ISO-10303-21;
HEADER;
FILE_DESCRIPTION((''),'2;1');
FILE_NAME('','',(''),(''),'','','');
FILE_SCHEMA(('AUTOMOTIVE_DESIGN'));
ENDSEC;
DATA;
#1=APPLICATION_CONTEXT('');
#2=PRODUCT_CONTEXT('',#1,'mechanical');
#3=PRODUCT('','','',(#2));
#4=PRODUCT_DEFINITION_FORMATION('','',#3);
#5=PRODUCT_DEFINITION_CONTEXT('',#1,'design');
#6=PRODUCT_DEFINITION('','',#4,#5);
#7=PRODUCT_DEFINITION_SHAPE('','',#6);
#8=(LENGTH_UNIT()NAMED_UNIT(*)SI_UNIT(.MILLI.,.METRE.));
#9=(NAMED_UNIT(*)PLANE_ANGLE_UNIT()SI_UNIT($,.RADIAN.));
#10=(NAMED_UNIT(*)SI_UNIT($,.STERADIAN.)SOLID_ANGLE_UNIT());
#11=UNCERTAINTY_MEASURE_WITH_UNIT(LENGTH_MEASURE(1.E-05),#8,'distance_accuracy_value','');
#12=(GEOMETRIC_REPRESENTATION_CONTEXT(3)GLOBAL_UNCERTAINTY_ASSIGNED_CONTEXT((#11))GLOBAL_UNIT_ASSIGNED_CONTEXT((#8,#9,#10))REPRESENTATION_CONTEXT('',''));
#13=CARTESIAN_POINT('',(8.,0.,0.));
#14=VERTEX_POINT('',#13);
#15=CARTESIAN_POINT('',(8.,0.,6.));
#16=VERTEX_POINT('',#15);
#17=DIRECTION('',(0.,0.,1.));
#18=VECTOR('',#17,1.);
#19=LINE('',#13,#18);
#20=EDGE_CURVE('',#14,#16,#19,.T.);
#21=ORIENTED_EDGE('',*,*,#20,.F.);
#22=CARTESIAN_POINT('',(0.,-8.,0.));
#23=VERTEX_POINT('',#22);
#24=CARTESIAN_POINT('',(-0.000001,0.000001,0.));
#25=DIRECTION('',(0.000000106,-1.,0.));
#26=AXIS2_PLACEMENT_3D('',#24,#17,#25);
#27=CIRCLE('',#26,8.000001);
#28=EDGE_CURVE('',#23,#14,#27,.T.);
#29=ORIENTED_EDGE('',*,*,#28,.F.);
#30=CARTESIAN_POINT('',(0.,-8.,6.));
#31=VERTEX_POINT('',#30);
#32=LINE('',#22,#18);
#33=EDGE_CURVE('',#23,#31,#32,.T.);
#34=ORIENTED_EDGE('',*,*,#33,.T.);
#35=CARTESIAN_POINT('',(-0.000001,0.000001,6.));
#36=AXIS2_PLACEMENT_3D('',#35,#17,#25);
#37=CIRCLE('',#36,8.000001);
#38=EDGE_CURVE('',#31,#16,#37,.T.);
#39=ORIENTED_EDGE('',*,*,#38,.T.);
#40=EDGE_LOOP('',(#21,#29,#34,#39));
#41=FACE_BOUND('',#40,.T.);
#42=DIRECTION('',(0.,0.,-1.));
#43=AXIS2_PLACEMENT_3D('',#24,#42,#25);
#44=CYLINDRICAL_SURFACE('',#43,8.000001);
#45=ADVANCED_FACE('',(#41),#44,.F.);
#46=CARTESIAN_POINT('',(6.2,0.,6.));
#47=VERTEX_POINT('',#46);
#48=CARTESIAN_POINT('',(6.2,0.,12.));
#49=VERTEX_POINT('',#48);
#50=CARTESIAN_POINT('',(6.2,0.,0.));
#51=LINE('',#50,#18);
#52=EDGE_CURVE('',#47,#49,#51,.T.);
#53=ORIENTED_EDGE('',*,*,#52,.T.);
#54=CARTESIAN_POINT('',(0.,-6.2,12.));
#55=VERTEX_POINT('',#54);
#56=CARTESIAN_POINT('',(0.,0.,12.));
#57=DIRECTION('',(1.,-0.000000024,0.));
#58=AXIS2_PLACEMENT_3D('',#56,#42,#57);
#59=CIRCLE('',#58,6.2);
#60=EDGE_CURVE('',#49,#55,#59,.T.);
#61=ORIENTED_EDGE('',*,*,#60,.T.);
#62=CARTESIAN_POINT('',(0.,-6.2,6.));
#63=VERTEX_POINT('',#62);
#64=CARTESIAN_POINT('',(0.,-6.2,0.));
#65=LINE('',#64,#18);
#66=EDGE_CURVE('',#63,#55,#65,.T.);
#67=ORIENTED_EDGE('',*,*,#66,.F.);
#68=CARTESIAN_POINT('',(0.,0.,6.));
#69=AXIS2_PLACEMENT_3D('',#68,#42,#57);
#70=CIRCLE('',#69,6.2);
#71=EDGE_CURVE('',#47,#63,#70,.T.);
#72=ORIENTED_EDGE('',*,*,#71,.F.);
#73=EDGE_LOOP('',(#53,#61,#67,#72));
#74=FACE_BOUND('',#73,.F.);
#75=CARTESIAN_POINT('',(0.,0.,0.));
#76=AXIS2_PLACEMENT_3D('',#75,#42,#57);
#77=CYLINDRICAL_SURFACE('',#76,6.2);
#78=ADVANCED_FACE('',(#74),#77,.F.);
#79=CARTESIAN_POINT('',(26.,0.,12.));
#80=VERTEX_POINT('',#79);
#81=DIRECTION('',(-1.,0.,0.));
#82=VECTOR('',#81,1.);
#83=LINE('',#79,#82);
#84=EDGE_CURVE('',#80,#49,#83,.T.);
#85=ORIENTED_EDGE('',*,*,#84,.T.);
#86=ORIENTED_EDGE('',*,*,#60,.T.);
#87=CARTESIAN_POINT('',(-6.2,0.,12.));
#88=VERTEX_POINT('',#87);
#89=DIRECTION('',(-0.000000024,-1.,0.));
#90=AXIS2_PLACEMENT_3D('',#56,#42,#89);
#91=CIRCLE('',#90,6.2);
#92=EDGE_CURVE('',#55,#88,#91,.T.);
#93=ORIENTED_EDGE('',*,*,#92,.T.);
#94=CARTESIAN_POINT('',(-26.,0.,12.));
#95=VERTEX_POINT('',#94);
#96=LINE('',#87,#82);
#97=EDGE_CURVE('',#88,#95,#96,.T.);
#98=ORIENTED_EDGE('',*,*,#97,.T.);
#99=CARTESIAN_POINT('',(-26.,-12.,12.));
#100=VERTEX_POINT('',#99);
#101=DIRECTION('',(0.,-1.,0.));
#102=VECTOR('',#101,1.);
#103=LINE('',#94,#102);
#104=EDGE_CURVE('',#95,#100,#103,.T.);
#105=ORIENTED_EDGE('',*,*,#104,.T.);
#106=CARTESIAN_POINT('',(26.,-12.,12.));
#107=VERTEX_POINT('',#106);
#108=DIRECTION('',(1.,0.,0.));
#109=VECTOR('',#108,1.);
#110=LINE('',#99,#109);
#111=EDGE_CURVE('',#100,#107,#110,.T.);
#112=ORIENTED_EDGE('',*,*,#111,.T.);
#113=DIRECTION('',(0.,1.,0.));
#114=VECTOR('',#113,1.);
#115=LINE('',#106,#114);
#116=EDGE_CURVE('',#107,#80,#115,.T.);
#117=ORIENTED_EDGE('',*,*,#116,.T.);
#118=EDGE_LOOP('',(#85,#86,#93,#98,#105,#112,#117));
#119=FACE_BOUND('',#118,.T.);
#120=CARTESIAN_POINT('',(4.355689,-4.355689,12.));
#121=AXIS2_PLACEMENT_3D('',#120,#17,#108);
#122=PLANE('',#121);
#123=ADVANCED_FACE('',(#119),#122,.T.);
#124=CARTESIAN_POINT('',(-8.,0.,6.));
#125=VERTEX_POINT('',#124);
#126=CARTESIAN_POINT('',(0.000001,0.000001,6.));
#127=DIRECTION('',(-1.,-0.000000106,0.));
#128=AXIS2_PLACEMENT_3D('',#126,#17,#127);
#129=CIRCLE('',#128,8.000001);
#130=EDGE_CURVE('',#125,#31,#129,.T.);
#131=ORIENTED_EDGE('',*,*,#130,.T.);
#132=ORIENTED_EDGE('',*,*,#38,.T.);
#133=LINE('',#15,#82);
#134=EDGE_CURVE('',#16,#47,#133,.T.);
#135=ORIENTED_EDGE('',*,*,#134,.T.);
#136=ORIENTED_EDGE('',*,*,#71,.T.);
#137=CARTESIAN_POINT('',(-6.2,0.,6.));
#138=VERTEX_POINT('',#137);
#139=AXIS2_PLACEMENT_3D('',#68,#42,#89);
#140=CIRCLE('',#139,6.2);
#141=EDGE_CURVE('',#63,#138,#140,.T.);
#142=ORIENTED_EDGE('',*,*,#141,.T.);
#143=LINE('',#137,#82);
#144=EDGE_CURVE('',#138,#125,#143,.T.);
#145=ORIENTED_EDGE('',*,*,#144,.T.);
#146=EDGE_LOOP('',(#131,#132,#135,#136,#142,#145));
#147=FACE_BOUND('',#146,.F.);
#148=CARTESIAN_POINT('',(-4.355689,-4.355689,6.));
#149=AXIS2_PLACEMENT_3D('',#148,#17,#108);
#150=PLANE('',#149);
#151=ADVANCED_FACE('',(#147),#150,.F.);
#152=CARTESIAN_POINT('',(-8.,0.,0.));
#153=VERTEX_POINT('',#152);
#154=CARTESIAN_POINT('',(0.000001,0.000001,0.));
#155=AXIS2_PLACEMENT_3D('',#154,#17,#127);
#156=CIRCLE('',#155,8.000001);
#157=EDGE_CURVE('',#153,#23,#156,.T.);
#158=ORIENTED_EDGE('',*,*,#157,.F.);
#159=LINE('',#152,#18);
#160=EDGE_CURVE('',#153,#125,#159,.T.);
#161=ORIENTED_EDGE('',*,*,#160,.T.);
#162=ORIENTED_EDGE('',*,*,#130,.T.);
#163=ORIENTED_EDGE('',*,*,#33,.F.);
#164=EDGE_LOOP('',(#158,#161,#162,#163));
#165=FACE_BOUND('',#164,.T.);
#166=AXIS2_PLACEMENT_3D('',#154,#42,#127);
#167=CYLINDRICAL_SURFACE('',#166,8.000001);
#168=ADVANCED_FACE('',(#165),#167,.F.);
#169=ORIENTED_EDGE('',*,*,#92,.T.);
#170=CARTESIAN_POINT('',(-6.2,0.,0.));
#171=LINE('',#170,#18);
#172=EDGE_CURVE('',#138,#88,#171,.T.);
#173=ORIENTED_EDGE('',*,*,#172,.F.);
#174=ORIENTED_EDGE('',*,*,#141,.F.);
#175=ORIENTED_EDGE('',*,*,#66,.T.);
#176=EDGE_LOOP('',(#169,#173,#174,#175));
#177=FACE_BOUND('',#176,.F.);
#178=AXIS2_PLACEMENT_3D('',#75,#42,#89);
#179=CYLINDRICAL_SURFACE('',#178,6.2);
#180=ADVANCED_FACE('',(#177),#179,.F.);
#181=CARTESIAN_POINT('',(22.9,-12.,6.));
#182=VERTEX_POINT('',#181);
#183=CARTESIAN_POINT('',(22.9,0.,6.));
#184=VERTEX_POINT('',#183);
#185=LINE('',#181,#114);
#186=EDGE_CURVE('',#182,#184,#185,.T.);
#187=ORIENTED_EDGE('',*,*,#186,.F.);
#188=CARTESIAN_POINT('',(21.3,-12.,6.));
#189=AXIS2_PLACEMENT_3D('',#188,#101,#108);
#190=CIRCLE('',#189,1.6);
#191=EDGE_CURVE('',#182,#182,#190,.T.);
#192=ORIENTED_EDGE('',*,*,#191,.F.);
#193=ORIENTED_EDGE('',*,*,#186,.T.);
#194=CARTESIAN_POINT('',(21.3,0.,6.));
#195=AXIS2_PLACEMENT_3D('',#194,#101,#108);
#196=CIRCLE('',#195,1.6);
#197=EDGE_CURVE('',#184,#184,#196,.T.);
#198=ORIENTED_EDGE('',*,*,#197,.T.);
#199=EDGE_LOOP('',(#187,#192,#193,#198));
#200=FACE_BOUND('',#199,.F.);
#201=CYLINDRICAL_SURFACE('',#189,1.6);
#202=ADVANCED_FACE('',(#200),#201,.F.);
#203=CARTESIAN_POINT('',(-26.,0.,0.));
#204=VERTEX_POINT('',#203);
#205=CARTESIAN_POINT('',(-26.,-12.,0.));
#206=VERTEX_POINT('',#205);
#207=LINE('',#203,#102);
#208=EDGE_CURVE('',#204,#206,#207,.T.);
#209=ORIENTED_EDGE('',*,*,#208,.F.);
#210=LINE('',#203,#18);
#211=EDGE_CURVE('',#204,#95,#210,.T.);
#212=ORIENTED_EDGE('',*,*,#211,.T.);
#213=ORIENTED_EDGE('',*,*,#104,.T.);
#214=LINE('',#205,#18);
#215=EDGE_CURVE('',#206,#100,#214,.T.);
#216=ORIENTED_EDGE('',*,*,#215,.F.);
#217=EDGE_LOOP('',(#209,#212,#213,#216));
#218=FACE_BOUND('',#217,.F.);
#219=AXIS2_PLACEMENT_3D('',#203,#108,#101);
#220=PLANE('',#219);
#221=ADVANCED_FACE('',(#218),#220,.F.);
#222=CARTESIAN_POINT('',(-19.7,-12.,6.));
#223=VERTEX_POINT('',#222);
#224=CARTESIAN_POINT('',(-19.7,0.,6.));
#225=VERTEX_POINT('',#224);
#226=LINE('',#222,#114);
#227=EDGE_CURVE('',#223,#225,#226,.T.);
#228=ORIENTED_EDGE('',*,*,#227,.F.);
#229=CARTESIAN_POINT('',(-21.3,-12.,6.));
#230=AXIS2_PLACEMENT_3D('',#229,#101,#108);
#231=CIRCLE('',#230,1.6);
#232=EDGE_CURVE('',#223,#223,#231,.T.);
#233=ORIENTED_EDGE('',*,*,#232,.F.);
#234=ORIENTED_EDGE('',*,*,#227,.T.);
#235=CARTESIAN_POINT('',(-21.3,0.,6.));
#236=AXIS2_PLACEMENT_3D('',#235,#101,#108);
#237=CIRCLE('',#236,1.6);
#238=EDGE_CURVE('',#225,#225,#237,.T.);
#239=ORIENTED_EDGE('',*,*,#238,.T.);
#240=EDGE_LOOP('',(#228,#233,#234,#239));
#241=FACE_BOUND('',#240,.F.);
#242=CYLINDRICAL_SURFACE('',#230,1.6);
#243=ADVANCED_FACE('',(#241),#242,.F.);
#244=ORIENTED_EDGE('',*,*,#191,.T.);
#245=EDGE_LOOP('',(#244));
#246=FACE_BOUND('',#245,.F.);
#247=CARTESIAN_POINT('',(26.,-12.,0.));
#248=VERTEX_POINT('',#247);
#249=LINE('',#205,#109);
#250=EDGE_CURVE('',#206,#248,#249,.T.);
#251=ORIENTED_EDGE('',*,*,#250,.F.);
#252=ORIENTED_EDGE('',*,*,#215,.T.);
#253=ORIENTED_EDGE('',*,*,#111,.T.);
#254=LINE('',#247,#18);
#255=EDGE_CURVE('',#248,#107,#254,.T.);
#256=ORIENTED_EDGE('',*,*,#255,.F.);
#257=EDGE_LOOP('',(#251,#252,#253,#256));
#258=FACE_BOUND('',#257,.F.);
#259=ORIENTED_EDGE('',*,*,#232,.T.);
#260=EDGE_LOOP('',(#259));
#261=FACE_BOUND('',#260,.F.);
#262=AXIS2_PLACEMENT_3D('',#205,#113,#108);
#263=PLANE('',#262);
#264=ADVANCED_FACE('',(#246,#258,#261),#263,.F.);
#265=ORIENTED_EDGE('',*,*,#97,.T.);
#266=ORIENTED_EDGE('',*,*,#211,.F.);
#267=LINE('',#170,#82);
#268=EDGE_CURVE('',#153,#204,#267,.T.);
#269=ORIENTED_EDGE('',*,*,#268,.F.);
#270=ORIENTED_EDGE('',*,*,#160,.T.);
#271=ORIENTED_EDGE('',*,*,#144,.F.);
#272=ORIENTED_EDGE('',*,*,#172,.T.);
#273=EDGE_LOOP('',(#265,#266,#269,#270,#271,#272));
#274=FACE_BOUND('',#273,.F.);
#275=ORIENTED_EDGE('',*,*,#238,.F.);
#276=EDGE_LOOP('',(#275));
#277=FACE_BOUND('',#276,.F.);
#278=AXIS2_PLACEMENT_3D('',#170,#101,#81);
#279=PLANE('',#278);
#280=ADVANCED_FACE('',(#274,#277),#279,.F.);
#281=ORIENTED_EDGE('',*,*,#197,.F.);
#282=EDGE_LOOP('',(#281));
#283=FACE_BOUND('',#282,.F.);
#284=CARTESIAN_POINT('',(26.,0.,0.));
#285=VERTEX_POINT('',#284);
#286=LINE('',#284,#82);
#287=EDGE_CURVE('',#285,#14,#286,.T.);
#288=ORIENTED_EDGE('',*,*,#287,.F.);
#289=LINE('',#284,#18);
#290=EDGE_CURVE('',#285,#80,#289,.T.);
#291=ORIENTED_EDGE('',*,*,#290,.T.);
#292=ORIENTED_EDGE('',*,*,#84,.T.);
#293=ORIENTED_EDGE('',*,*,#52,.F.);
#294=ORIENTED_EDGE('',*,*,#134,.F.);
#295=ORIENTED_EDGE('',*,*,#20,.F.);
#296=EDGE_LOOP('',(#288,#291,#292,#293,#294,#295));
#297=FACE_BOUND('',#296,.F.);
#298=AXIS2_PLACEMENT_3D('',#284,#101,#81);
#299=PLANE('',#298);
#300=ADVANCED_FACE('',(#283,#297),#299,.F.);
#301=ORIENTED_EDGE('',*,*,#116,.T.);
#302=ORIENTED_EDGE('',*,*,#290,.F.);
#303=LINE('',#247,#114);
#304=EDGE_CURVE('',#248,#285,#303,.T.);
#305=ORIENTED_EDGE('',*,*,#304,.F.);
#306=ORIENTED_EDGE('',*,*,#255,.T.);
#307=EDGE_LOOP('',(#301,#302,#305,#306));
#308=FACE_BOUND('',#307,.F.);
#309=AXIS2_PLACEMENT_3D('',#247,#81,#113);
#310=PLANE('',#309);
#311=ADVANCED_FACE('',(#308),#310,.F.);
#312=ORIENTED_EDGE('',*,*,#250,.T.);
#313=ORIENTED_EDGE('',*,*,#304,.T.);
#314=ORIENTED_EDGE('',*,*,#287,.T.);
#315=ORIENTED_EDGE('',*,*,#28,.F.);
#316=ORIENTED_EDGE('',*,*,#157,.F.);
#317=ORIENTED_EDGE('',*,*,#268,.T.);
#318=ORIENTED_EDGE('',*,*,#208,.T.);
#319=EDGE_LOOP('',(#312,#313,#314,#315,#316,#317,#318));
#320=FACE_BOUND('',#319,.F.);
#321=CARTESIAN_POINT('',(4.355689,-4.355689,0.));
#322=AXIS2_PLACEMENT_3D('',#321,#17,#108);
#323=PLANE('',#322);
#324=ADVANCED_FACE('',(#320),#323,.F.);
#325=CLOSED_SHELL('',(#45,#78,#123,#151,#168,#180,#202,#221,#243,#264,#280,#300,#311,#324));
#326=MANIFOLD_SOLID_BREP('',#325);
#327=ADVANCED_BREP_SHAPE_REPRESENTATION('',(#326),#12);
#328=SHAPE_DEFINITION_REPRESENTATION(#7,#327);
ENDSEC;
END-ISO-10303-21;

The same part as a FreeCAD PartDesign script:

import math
import FreeCAD as App
import Part
import Sketcher

V = App.Vector
Q = App.Units.Quantity

doc = App.newDocument("Part")
body = doc.addObject("PartDesign::Body", "Body")

# Sketch on XY plane
sketch1 = body.newObject("Sketcher::SketchObject", "Sketch")
sketch1.AttachmentSupport = (doc.getObject("XY_Plane"), [""])
sketch1.MapMode = "FlatFace"
sketch1.addGeometry([
    Part.ArcOfCircle(Part.Circle(V(0, 0, 0), V(0, 0, 1), 6), math.radians(-90), math.radians(0)),  # 0
    Part.ArcOfCircle(Part.Circle(V(0, 0, 0), V(0, 0, 1), 6), math.radians(-180), math.radians(-90)),  # 1
    Part.LineSegment(V(-6, 0, 0), V(-26, 0, 0)),  # 2
    Part.LineSegment(V(-26, 0, 0), V(-26, -12, 0)),  # 3
    Part.LineSegment(V(-26, -12, 0), V(26, -12, 0)),  # 4
    Part.LineSegment(V(26, -12, 0), V(26, 0, 0)),  # 5
    Part.LineSegment(V(26, 0, 0), V(6, 0, 0)),  # 6
], False)
sketch1.addConstraint([
    Sketcher.Constraint("Tangent", 0, 1, 1, 2),
    Sketcher.Constraint("Coincident", 1, 1, 2, 1),
    Sketcher.Constraint("Coincident", 2, 2, 3, 1),
    Sketcher.Constraint("Coincident", 3, 2, 4, 1),
    Sketcher.Constraint("Coincident", 4, 2, 5, 1),
    Sketcher.Constraint("Coincident", 5, 2, 6, 1),
    Sketcher.Constraint("Coincident", 6, 2, 0, 2),
    Sketcher.Constraint("Horizontal", 2),
    Sketcher.Constraint("Vertical", 3),
    Sketcher.Constraint("Horizontal", 4),
    Sketcher.Constraint("Vertical", 5),
    Sketcher.Constraint("Horizontal", 6),
    Sketcher.Constraint("Coincident", 0, 3, -1, 1),
    Sketcher.Constraint("Equal", 0, 1),
    Sketcher.Constraint("Symmetric", 2, 2, 5, 2, -1, 1),
    Sketcher.Constraint("PointOnObject", 0, 1, -2),
    Sketcher.Constraint("PointOnObject", 1, 1, -1),
    Sketcher.Constraint("Radius", 0, Q("6.2 mm")),
    Sketcher.Constraint("DistanceX", 4, 1, 4, 2, Q("52 mm")),
    Sketcher.Constraint("DistanceY", 3, 2, 3, 1, Q("12 mm")),
])
pad1 = body.newObject("PartDesign::Pad", "Pad")
pad1.Profile = sketch1
pad1.Length = 12

# Sketch on XY plane
sketch2 = body.newObject("Sketcher::SketchObject", "Sketch001")
sketch2.AttachmentSupport = (doc.getObject("XY_Plane"), [""])
sketch2.MapMode = "FlatFace"
sketch2.addGeometry([
    Part.ArcOfCircle(Part.Circle(V(0, 0, 0), V(0, 0, 1), 6.2), math.radians(-180), math.radians(-90)),  # 0
    Part.LineSegment(V(-6.2, 0, 0), V(-8, 0, 0)),  # 1
    Part.ArcOfCircle(Part.Circle(V(0, 0, 0), V(0, 0, 1), 8), math.radians(-180), math.radians(-90)),  # 2
    Part.ArcOfCircle(Part.Circle(V(0, 0, 0), V(0, 0, 1), 8), math.radians(-90), math.radians(0)),  # 3
    Part.LineSegment(V(8, 0, 0), V(6.2, 0, 0)),  # 4
    Part.ArcOfCircle(Part.Circle(V(0, 0, 0), V(0, 0, 1), 6.2), math.radians(-90), math.radians(0)),  # 5
], False)
sketch2.addConstraint([
    Sketcher.Constraint("Coincident", 0, 1, 1, 1),
    Sketcher.Constraint("Coincident", 1, 2, 2, 1),
    Sketcher.Constraint("Tangent", 2, 2, 3, 1),
    Sketcher.Constraint("Coincident", 3, 2, 4, 1),
    Sketcher.Constraint("Coincident", 4, 2, 5, 2),
    Sketcher.Constraint("Tangent", 5, 1, 0, 2),
    Sketcher.Constraint("Horizontal", 1),
    Sketcher.Constraint("Horizontal", 4),
    Sketcher.Constraint("Coincident", 0, 3, -1, 1),
    Sketcher.Constraint("Coincident", 2, 3, -1, 1),
    Sketcher.Constraint("Equal", 2, 3),
    Sketcher.Constraint("Equal", 0, 5),
    Sketcher.Constraint("PointOnObject", 0, 1, -1),
    Sketcher.Constraint("PointOnObject", 2, 2, -2),
    Sketcher.Constraint("PointOnObject", 3, 2, -1),
    Sketcher.Constraint("PointOnObject", 5, 1, -2),
    Sketcher.Constraint("Radius", 2, Q("8.000001 mm")),
    Sketcher.Constraint("Radius", 0, Q("6.2 mm")),
])
pocket1 = body.newObject("PartDesign::Pocket", "Pocket")
pocket1.Profile = sketch2
pocket1.Length = 6
pocket1.Reversed = True

# Sketch on XZ plane
sketch3 = body.newObject("Sketcher::SketchObject", "Sketch002")
sketch3.AttachmentSupport = (doc.getObject("XZ_Plane"), [""])
sketch3.MapMode = "FlatFace"
sketch3.AttachmentOffset = App.Placement(V(0, 0, 12), App.Rotation())
sketch3.addGeometry([
    Part.Circle(V(-21.3, 6, 0), V(0, 0, 1), 1.6),
    Part.Circle(V(21.3, 6, 0), V(0, 0, 1), 1.6),
], False)
sketch3.addConstraint([
    Sketcher.Constraint("Equal", 0, 1),
    Sketcher.Constraint("Symmetric", 0, 3, 1, 3, -2),
    Sketcher.Constraint("Diameter", 0, Q("3.2 mm")),
    Sketcher.Constraint("DistanceY", -1, 1, 0, 3, Q("6 mm")),
    Sketcher.Constraint("DistanceX", 0, 3, -1, 1, Q("21.3 mm")),
])
pocket2 = body.newObject("PartDesign::Pocket", "Pocket001")
pocket2.Profile = sketch3
pocket2.Length = 25

doc.recompute()
